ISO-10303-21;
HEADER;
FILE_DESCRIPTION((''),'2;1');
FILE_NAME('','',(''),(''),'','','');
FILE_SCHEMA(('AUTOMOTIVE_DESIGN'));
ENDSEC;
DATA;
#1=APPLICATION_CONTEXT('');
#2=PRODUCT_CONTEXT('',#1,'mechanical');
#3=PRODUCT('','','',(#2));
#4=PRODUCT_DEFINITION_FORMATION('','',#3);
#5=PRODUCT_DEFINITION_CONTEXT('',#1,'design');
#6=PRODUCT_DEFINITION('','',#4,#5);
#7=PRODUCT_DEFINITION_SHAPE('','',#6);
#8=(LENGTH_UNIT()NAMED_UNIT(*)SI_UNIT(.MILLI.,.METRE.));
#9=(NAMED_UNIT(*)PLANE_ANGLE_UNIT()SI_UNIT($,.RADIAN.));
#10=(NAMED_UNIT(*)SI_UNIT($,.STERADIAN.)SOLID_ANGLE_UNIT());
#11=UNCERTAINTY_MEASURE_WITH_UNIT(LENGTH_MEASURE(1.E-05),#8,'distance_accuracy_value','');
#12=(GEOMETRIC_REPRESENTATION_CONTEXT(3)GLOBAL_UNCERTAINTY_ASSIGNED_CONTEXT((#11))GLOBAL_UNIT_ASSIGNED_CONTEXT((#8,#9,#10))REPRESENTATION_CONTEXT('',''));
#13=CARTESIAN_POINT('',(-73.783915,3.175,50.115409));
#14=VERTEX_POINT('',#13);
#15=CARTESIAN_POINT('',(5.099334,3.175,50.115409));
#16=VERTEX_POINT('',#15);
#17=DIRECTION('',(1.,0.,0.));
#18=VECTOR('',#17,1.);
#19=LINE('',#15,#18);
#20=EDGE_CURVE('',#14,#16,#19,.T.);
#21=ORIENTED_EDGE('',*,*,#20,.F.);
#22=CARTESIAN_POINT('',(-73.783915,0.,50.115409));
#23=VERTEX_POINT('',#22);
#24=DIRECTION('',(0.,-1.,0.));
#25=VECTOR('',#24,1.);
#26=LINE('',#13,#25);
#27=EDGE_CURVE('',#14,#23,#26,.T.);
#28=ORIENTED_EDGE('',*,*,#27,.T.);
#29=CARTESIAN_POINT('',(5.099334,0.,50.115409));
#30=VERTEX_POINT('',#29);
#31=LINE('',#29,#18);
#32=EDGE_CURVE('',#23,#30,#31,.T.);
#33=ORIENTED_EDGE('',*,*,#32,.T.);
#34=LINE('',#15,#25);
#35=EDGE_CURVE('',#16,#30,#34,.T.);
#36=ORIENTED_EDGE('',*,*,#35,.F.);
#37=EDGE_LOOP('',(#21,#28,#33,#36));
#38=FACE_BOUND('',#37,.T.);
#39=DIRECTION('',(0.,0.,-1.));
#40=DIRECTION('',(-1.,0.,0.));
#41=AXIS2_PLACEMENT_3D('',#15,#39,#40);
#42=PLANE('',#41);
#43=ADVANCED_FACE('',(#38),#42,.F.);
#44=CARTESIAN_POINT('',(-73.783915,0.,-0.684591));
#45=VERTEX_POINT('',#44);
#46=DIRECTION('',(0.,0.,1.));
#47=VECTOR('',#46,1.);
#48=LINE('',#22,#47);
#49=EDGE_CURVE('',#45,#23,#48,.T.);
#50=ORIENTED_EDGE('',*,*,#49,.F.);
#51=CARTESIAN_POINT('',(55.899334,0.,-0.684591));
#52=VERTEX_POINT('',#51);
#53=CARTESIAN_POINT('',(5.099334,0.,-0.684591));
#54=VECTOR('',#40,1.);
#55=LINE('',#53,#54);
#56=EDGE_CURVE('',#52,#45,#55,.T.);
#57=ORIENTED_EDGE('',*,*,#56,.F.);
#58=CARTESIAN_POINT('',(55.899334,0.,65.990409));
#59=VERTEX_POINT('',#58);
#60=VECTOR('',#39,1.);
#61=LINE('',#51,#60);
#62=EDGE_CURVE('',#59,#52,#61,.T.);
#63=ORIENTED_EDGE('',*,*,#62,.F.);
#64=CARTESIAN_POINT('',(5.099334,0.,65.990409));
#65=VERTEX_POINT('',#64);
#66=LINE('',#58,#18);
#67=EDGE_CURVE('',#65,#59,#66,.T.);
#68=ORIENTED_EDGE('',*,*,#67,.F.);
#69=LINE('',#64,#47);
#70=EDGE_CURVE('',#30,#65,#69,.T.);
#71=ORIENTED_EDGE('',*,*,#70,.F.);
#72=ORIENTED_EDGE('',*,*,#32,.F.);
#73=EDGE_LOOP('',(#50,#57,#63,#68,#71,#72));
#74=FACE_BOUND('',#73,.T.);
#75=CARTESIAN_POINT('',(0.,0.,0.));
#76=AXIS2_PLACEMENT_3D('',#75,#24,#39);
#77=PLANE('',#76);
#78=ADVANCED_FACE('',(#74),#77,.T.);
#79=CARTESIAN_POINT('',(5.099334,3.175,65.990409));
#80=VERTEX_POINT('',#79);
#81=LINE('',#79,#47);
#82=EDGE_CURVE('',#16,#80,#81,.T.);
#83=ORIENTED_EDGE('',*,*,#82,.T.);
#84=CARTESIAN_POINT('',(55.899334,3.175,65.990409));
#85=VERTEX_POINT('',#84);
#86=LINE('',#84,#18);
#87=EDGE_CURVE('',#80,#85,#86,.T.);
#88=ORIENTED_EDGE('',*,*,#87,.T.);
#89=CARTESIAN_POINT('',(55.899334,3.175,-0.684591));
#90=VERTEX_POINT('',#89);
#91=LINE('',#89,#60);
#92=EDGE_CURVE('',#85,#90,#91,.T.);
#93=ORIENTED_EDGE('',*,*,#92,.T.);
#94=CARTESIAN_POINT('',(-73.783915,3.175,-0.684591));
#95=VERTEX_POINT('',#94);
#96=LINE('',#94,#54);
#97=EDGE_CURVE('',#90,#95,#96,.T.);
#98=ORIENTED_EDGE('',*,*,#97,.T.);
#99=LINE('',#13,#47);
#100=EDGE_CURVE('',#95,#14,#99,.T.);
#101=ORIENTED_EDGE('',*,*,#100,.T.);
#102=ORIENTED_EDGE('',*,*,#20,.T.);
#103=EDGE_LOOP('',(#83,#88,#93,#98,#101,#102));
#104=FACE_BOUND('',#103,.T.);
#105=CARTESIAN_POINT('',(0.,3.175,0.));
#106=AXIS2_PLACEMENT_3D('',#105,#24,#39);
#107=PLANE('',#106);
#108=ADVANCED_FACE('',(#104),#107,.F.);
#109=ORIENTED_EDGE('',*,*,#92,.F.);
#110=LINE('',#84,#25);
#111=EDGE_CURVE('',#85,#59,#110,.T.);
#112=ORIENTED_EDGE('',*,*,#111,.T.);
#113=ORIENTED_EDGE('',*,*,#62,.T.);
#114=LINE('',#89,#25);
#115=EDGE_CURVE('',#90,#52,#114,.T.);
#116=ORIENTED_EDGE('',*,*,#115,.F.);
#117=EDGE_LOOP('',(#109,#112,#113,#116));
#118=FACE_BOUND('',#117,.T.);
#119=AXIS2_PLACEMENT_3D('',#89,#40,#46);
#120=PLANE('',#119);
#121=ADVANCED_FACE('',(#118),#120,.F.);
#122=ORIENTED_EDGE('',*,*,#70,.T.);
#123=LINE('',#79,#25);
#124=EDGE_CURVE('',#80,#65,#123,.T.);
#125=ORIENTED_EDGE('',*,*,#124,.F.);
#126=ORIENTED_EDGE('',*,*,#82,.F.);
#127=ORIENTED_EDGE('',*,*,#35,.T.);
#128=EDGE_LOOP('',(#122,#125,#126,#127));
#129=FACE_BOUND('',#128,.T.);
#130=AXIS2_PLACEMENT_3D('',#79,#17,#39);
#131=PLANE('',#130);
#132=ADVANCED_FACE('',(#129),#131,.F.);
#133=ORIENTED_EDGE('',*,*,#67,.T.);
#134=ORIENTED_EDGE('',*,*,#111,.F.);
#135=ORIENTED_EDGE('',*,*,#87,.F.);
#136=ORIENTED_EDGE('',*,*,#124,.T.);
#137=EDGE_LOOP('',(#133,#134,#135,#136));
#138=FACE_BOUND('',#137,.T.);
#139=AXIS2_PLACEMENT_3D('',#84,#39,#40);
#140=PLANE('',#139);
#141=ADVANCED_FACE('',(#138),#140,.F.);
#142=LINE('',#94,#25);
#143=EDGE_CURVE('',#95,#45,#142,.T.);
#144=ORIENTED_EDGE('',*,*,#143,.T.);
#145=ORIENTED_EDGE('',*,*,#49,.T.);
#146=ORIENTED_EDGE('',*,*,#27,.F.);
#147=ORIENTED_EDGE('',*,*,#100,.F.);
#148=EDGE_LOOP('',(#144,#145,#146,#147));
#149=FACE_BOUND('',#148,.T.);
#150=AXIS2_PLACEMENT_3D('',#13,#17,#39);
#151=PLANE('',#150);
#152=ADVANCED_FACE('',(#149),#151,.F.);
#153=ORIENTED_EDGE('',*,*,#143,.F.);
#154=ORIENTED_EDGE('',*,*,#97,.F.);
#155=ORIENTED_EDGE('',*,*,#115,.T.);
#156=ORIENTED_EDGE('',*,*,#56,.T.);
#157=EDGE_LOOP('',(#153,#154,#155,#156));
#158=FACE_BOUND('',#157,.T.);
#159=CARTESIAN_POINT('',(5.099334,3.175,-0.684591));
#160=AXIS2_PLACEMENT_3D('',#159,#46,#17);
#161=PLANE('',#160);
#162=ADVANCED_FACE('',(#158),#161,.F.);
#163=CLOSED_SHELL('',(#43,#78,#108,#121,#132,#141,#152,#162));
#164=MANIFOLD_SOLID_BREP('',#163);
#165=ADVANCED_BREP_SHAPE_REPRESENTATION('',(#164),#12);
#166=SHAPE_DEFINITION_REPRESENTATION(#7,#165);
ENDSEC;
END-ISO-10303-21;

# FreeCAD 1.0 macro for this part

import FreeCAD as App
import Part
import Sketcher
Q = App.Units.Quantity


def add_polygon(sketch, points):
    """Adds a closed chain of lines whose ends are joined by coincident constraints."""
    first, n = sketch.GeometryCount, len(points)
    for a, b in zip(points, points[1:] + points[:1]):
        sketch.addGeometry(Part.LineSegment(App.Vector(*a, 0), App.Vector(*b, 0)), False)
    for i in range(n):
        sketch.addConstraint(Sketcher.Constraint("Coincident", first + i, 2, first + (i + 1) % n, 1))

doc = App.newDocument("Part")
body = doc.addObject("PartDesign::Body", "Body")

# Sketch on XZ plane
sketch1 = body.newObject("Sketcher::SketchObject", "Sketch")
sketch1.AttachmentSupport = (doc.getObject("XZ_Plane"), [""])
sketch1.MapMode = "FlatFace"
add_polygon(sketch1, [(56, -1), (-74, -1), (-74, 50), (5, 50), (5, 66), (56, 66)])  # lines 0-5
sketch1.addConstraint([
    Sketcher.Constraint("Horizontal", 0),
    Sketcher.Constraint("Vertical", 1),
    Sketcher.Constraint("Horizontal", 2),
    Sketcher.Constraint("Vertical", 3),
    Sketcher.Constraint("Horizontal", 4),
    Sketcher.Constraint("Vertical", 5),
    Sketcher.Constraint("Equal", 4, 1),
    Sketcher.Constraint("DistanceX", 4, 1, 4, 2, Q("2 in")),
    Sketcher.Constraint("DistanceY", 3, 1, 3, 2, Q("0.625 in")),
    Sketcher.Constraint("DistanceX", 0, 2, 0, 1, 129.683248),
    Sketcher.Constraint("DistanceY", 0, 2, -1, 1, 0.684591),
    Sketcher.Constraint("DistanceX", 0, 2, -1, 1, 73.783915),
])
pad1 = body.newObject("PartDesign::Pad", "Pad")
pad1.Profile = sketch1
pad1.Length = Q("0.125 in")
pad1.Reversed = True

doc.recompute()
